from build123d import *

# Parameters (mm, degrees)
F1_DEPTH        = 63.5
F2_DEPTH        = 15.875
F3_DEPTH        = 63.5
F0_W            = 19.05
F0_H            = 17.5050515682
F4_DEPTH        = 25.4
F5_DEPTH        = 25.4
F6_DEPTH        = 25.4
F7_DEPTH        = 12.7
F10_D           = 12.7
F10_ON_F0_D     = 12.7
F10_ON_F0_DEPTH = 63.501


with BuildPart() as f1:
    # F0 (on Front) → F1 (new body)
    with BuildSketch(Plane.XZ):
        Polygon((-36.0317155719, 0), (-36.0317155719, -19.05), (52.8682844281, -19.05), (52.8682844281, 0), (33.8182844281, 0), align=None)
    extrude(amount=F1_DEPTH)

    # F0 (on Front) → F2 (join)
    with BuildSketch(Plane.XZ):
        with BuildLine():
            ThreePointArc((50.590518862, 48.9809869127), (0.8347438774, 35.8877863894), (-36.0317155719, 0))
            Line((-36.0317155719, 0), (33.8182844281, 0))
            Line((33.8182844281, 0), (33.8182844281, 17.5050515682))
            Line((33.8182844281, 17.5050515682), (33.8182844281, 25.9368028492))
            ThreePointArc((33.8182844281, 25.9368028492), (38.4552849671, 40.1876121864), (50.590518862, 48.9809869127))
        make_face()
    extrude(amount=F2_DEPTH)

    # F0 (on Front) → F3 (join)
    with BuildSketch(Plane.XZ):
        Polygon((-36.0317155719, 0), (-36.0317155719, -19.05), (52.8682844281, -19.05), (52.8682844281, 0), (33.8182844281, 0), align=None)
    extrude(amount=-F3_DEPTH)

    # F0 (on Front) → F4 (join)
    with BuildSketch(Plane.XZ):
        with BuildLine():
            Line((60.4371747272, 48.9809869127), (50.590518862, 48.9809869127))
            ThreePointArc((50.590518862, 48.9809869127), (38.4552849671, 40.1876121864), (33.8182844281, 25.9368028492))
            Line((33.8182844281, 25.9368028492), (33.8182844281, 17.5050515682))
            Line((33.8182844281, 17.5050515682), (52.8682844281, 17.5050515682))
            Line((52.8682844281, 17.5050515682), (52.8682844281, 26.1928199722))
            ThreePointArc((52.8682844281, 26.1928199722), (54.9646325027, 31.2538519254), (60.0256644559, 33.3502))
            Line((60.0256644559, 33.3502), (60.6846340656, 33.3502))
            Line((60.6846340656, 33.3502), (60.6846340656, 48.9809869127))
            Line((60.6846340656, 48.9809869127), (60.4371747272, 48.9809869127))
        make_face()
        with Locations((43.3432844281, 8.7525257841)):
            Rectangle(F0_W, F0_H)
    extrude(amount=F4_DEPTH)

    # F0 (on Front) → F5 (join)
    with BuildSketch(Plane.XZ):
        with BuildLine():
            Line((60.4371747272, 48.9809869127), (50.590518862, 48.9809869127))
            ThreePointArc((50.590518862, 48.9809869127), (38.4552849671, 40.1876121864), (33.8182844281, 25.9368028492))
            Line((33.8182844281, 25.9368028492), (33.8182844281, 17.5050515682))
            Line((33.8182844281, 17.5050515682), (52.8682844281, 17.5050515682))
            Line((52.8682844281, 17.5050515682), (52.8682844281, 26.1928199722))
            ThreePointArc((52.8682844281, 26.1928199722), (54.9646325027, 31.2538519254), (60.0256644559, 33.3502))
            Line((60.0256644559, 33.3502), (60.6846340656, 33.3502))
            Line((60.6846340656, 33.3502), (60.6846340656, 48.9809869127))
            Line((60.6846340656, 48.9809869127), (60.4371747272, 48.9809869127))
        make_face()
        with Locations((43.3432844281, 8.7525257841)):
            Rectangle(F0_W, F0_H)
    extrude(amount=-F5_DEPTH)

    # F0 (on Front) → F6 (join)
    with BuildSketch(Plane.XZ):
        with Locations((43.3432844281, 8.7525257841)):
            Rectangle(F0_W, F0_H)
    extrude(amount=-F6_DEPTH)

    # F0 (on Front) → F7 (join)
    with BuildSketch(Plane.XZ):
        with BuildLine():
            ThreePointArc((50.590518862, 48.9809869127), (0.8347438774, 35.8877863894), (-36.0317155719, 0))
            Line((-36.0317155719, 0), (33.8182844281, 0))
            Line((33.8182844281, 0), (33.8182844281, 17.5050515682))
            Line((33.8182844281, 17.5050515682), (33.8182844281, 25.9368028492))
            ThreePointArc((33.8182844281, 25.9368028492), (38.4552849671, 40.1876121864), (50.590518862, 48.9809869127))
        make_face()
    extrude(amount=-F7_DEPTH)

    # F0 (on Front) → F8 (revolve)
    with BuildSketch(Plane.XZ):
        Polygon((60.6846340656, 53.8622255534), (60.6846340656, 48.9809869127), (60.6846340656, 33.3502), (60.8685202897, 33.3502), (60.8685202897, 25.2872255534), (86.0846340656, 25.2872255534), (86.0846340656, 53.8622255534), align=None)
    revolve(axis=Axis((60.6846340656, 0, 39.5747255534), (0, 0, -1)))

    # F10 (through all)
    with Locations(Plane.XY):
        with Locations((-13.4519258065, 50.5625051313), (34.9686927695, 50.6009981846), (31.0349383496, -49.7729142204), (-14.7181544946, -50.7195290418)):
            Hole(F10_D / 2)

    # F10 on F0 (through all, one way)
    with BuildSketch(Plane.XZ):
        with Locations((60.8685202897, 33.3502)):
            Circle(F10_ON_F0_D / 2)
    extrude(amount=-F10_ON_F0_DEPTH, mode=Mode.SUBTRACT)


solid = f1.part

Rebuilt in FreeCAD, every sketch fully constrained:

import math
import FreeCAD as App
import Part
import Sketcher
Q = App.Units.Quantity

doc = App.newDocument("Part")
body = doc.addObject("PartDesign::Body", "Body")

# Sketch on XZ plane
sketch1 = doc.addObject("Sketcher::SketchObject", "Sketch")
body.addObject(sketch1)
sketch1.AttachmentSupport = (doc.XZ_Plane, [""])
sketch1.MapMode = "FlatFace"
sketch1.addGeometry(Part.LineSegment(App.Vector(-36, 0, 0), App.Vector(-36, -19, 0)), False)
sketch1.addGeometry(Part.LineSegment(App.Vector(-36, -19, 0), App.Vector(53, -19, 0)), False)
sketch1.addGeometry(Part.LineSegment(App.Vector(53, -19, 0), App.Vector(53, 0, 0)), False)
sketch1.addGeometry(Part.LineSegment(App.Vector(53, 0, 0), App.Vector(-36, 0, 0)), False)
sketch1.addConstraint(Sketcher.Constraint("Coincident", 0, 2, 1, 1))
sketch1.addConstraint(Sketcher.Constraint("Coincident", 1, 2, 2, 1))
sketch1.addConstraint(Sketcher.Constraint("Coincident", 2, 2, 3, 1))
sketch1.addConstraint(Sketcher.Constraint("Coincident", 3, 2, 0, 1))
sketch1.addConstraint(Sketcher.Constraint("Vertical", 0))
sketch1.addConstraint(Sketcher.Constraint("Horizontal", 1))
sketch1.addConstraint(Sketcher.Constraint("Vertical", 2))
sketch1.addConstraint(Sketcher.Constraint("Horizontal", 3))
sketch1.addConstraint(Sketcher.Constraint("PointOnObject", 2, 2, -1))
sketch1.addConstraint(Sketcher.Constraint("DistanceX", 1, 1, 1, 2, Q("3.5 in")))
sketch1.addConstraint(Sketcher.Constraint("DistanceY", 0, 2, 0, 1, Q("0.75 in")))
sketch1.addConstraint(Sketcher.Constraint("DistanceX", 0, 2, -1, 1, 36.031716))
pad1 = doc.addObject("PartDesign::Pad", "Pad")
body.addObject(pad1)
pad1.Profile = sketch1
pad1.Length = Q("2.5 in")

# Sketch on XZ plane
sketch2 = doc.addObject("Sketcher::SketchObject", "Sketch001")
body.addObject(sketch2)
sketch2.AttachmentSupport = (doc.XZ_Plane, [""])
sketch2.MapMode = "FlatFace"
sketch2.addGeometry(Part.ArcOfCircle(Part.Circle(App.Vector(51, -52, 0), App.Vector(0, 0, 1), 101), math.radians(90), math.radians(149)), False)
sketch2.addGeometry(Part.LineSegment(App.Vector(-36, 0, 0), App.Vector(34, 0, 0)), False)
sketch2.addGeometry(Part.LineSegment(App.Vector(34, 0, 0), App.Vector(34, 26, 0)), False)
sketch2.addGeometry(Part.ArcOfCircle(Part.Circle(App.Vector(58, 26, 0), App.Vector(0, 0, 1), 24), math.radians(108), math.radians(180)), False)
sketch2.addConstraint(Sketcher.Constraint("Coincident", 0, 2, 1, 1))
sketch2.addConstraint(Sketcher.Constraint("Coincident", 1, 2, 2, 1))
sketch2.addConstraint(Sketcher.Constraint("Tangent", 2, 2, 3, 2))
sketch2.addConstraint(Sketcher.Constraint("Coincident", 3, 1, 0, 1))
sketch2.addConstraint(Sketcher.Constraint("Horizontal", 1))
sketch2.addConstraint(Sketcher.Constraint("Vertical", 2))
sketch2.addConstraint(Sketcher.Constraint("PointOnObject", 0, 2, -1))
sketch2.addConstraint(Sketcher.Constraint("Vertical", 0, 3, 3, 1))
sketch2.addConstraint(Sketcher.Constraint("DistanceX", 1, 1, 1, 2, Q("2.75 in")))
sketch2.addConstraint(Sketcher.Constraint("Radius", 0, 101.085638))
sketch2.addConstraint(Sketcher.Constraint("Radius", 3, 24.216877))
sketch2.addConstraint(Sketcher.Constraint("DistanceY", 2, 1, 2, 2, 25.936803))
sketch2.addConstraint(Sketcher.Constraint("DistanceX", -1, 1, 0, 3, 50.590519))
pad2 = doc.addObject("PartDesign::Pad", "Pad001")
body.addObject(pad2)
pad2.Profile = sketch2
pad2.Length = Q("0.625 in")

# Sketch on XZ plane
sketch3 = doc.addObject("Sketcher::SketchObject", "Sketch002")
body.addObject(sketch3)
sketch3.AttachmentSupport = (doc.XZ_Plane, [""])
sketch3.MapMode = "FlatFace"
sketch3.addGeometry(Part.LineSegment(App.Vector(-36, 0, 0), App.Vector(-36, -19, 0)), False)
sketch3.addGeometry(Part.LineSegment(App.Vector(-36, -19, 0), App.Vector(53, -19, 0)), False)
sketch3.addGeometry(Part.LineSegment(App.Vector(53, -19, 0), App.Vector(53, 0, 0)), False)
sketch3.addGeometry(Part.LineSegment(App.Vector(53, 0, 0), App.Vector(-36, 0, 0)), False)
sketch3.addConstraint(Sketcher.Constraint("Coincident", 0, 2, 1, 1))
sketch3.addConstraint(Sketcher.Constraint("Coincident", 1, 2, 2, 1))
sketch3.addConstraint(Sketcher.Constraint("Coincident", 2, 2, 3, 1))
sketch3.addConstraint(Sketcher.Constraint("Coincident", 3, 2, 0, 1))
sketch3.addConstraint(Sketcher.Constraint("Vertical", 0))
sketch3.addConstraint(Sketcher.Constraint("Horizontal", 1))
sketch3.addConstraint(Sketcher.Constraint("Vertical", 2))
sketch3.addConstraint(Sketcher.Constraint("Horizontal", 3))
sketch3.addConstraint(Sketcher.Constraint("PointOnObject", 2, 2, -1))
sketch3.addConstraint(Sketcher.Constraint("DistanceX", 1, 1, 1, 2, Q("3.5 in")))
sketch3.addConstraint(Sketcher.Constraint("DistanceY", 0, 2, 0, 1, Q("0.75 in")))
sketch3.addConstraint(Sketcher.Constraint("DistanceX", 0, 2, -1, 1, 36.031716))
pad3 = doc.addObject("PartDesign::Pad", "Pad002")
body.addObject(pad3)
pad3.Profile = sketch3
pad3.Length = Q("2.5 in")
pad3.Reversed = True

# Sketch on XZ plane
sketch4 = doc.addObject("Sketcher::SketchObject", "Sketch003")
body.addObject(sketch4)
sketch4.AttachmentSupport = (doc.XZ_Plane, [""])
sketch4.MapMode = "FlatFace"
sketch4.addGeometry(Part.ArcOfCircle(Part.Circle(App.Vector(58, 25.9, 0), App.Vector(0, 0, 1), 24.2), math.radians(108), math.radians(180)), False)
sketch4.addGeometry(Part.LineSegment(App.Vector(33.8, 25.9, 0), App.Vector(33.8, 0, 0)), False)
sketch4.addGeometry(Part.LineSegment(App.Vector(33.8, 0, 0), App.Vector(52.9, 0, 0)), False)
sketch4.addGeometry(Part.LineSegment(App.Vector(52.9, 0, 0), App.Vector(52.9, 26.2, 0)), False)
sketch4.addGeometry(Part.ArcOfCircle(Part.Circle(App.Vector(60, 26.2, 0), App.Vector(0, 0, 1), 7.2), math.radians(90), math.radians(180)), False)
sketch4.addGeometry(Part.LineSegment(App.Vector(60, 33.4, 0), App.Vector(60.7, 33.4, 0)), False)
sketch4.addGeometry(Part.LineSegment(App.Vector(60.7, 33.4, 0), App.Vector(60.7, 49, 0)), False)
sketch4.addGeometry(Part.LineSegment(App.Vector(60.7, 49, 0), App.Vector(50.6, 49, 0)), False)
sketch4.addConstraint(Sketcher.Constraint("Tangent", 0, 2, 1, 1))
sketch4.addConstraint(Sketcher.Constraint("Coincident", 1, 2, 2, 1))
sketch4.addConstraint(Sketcher.Constraint("Coincident", 2, 2, 3, 1))
sketch4.addConstraint(Sketcher.Constraint("Tangent", 3, 2, 4, 2))
sketch4.addConstraint(Sketcher.Constraint("Tangent", 4, 1, 5, 1))
sketch4.addConstraint(Sketcher.Constraint("Coincident", 5, 2, 6, 1))
sketch4.addConstraint(Sketcher.Constraint("Coincident", 6, 2, 7, 1))
sketch4.addConstraint(Sketcher.Constraint("Coincident", 7, 2, 0, 1))
sketch4.addConstraint(Sketcher.Constraint("Vertical", 1))
sketch4.addConstraint(Sketcher.Constraint("Horizontal", 2))
sketch4.addConstraint(Sketcher.Constraint("Vertical", 3))
sketch4.addConstraint(Sketcher.Constraint("Horizontal", 5))
sketch4.addConstraint(Sketcher.Constraint("Vertical", 6))
sketch4.addConstraint(Sketcher.Constraint("Horizontal", 7))
sketch4.addConstraint(Sketcher.Constraint("PointOnObject", 1, 2, -1))
sketch4.addConstraint(Sketcher.Constraint("DistanceX", 2, 1, 2, 2, Q("0.75 in")))
sketch4.addConstraint(Sketcher.Constraint("DistanceY", -1, 1, 4, 1, Q("1.313 in")))
sketch4.addConstraint(Sketcher.Constraint("Radius", 4, 7.15738))
sketch4.addConstraint(Sketcher.Constraint("Radius", 0, 24.216877))
sketch4.addConstraint(Sketcher.Constraint("DistanceX", 5, 1, 5, 2, 0.65897))
sketch4.addConstraint(Sketcher.Constraint("DistanceX", 7, 2, 7, 1, 10.094115))
sketch4.addConstraint(Sketcher.Constraint("DistanceY", 1, 2, 1, 1, 25.936803))
sketch4.addConstraint(Sketcher.Constraint("DistanceX", -1, 1, 0, 3, 58.035161))
pad4 = doc.addObject("PartDesign::Pad", "Pad003")
body.addObject(pad4)
pad4.Profile = sketch4
pad4.Length = Q("1 in")

# Sketch on XZ plane
sketch5 = doc.addObject("Sketcher::SketchObject", "Sketch004")
body.addObject(sketch5)
sketch5.AttachmentSupport = (doc.XZ_Plane, [""])
sketch5.MapMode = "FlatFace"
sketch5.addGeometry(Part.ArcOfCircle(Part.Circle(App.Vector(58, 25.9, 0), App.Vector(0, 0, 1), 24.2), math.radians(108), math.radians(180)), False)
sketch5.addGeometry(Part.LineSegment(App.Vector(33.8, 25.9, 0), App.Vector(33.8, 0, 0)), False)
sketch5.addGeometry(Part.LineSegment(App.Vector(33.8, 0, 0), App.Vector(52.9, 0, 0)), False)
sketch5.addGeometry(Part.LineSegment(App.Vector(52.9, 0, 0), App.Vector(52.9, 26.2, 0)), False)
sketch5.addGeometry(Part.ArcOfCircle(Part.Circle(App.Vector(60, 26.2, 0), App.Vector(0, 0, 1), 7.2), math.radians(90), math.radians(180)), False)
sketch5.addGeometry(Part.LineSegment(App.Vector(60, 33.4, 0), App.Vector(60.7, 33.4, 0)), False)
sketch5.addGeometry(Part.LineSegment(App.Vector(60.7, 33.4, 0), App.Vector(60.7, 49, 0)), False)
sketch5.addGeometry(Part.LineSegment(App.Vector(60.7, 49, 0), App.Vector(50.6, 49, 0)), False)
sketch5.addConstraint(Sketcher.Constraint("Tangent", 0, 2, 1, 1))
sketch5.addConstraint(Sketcher.Constraint("Coincident", 1, 2, 2, 1))
sketch5.addConstraint(Sketcher.Constraint("Coincident", 2, 2, 3, 1))
sketch5.addConstraint(Sketcher.Constraint("Tangent", 3, 2, 4, 2))
sketch5.addConstraint(Sketcher.Constraint("Tangent", 4, 1, 5, 1))
sketch5.addConstraint(Sketcher.Constraint("Coincident", 5, 2, 6, 1))
sketch5.addConstraint(Sketcher.Constraint("Coincident", 6, 2, 7, 1))
sketch5.addConstraint(Sketcher.Constraint("Coincident", 7, 2, 0, 1))
sketch5.addConstraint(Sketcher.Constraint("Vertical", 1))
sketch5.addConstraint(Sketcher.Constraint("Horizontal", 2))
sketch5.addConstraint(Sketcher.Constraint("Vertical", 3))
sketch5.addConstraint(Sketcher.Constraint("Horizontal", 5))
sketch5.addConstraint(Sketcher.Constraint("Vertical", 6))
sketch5.addConstraint(Sketcher.Constraint("Horizontal", 7))
sketch5.addConstraint(Sketcher.Constraint("PointOnObject", 1, 2, -1))
sketch5.addConstraint(Sketcher.Constraint("DistanceX", 2, 1, 2, 2, Q("0.75 in")))
sketch5.addConstraint(Sketcher.Constraint("DistanceY", -1, 1, 4, 1, Q("1.313 in")))
sketch5.addConstraint(Sketcher.Constraint("Radius", 4, 7.15738))
sketch5.addConstraint(Sketcher.Constraint("Radius", 0, 24.216877))
sketch5.addConstraint(Sketcher.Constraint("DistanceX", 5, 1, 5, 2, 0.65897))
sketch5.addConstraint(Sketcher.Constraint("DistanceX", 7, 2, 7, 1, 10.094115))
sketch5.addConstraint(Sketcher.Constraint("DistanceY", 1, 2, 1, 1, 25.936803))
sketch5.addConstraint(Sketcher.Constraint("DistanceX", -1, 1, 0, 3, 58.035161))
pad5 = doc.addObject("PartDesign::Pad", "Pad004")
body.addObject(pad5)
pad5.Profile = sketch5
pad5.Length = Q("1 in")
pad5.Reversed = True

# Sketch on XZ plane
sketch6 = doc.addObject("Sketcher::SketchObject", "Sketch005")
body.addObject(sketch6)
sketch6.AttachmentSupport = (doc.XZ_Plane, [""])
sketch6.MapMode = "FlatFace"
sketch6.addGeometry(Part.LineSegment(App.Vector(34, 18, 0), App.Vector(34, 0, 0)), False)
sketch6.addGeometry(Part.LineSegment(App.Vector(34, 0, 0), App.Vector(53, 0, 0)), False)
sketch6.addGeometry(Part.LineSegment(App.Vector(53, 0, 0), App.Vector(53, 18, 0)), False)
sketch6.addGeometry(Part.LineSegment(App.Vector(53, 18, 0), App.Vector(34, 18, 0)), False)
sketch6.addConstraint(Sketcher.Constraint("Coincident", 0, 2, 1, 1))
sketch6.addConstraint(Sketcher.Constraint("Coincident", 1, 2, 2, 1))
sketch6.addConstraint(Sketcher.Constraint("Coincident", 2, 2, 3, 1))
sketch6.addConstraint(Sketcher.Constraint("Coincident", 3, 2, 0, 1))
sketch6.addConstraint(Sketcher.Constraint("Vertical", 0))
sketch6.addConstraint(Sketcher.Constraint("Horizontal", 1))
sketch6.addConstraint(Sketcher.Constraint("Vertical", 2))
sketch6.addConstraint(Sketcher.Constraint("Horizontal", 3))
sketch6.addConstraint(Sketcher.Constraint("PointOnObject", 0, 2, -1))
sketch6.addConstraint(Sketcher.Constraint("DistanceX", 1, 1, 1, 2, Q("0.75 in")))
sketch6.addConstraint(Sketcher.Constraint("DistanceY", 0, 2, 0, 1, 17.505052))
sketch6.addConstraint(Sketcher.Constraint("DistanceX", -1, 1, 0, 2, 33.818284))
pad6 = doc.addObject("PartDesign::Pad", "Pad005")
body.addObject(pad6)
pad6.Profile = sketch6
pad6.Length = Q("1 in")
pad6.Reversed = True

# Sketch on XZ plane
sketch7 = doc.addObject("Sketcher::SketchObject", "Sketch006")
body.addObject(sketch7)
sketch7.AttachmentSupport = (doc.XZ_Plane, [""])
sketch7.MapMode = "FlatFace"
sketch7.addGeometry(Part.ArcOfCircle(Part.Circle(App.Vector(51, -52, 0), App.Vector(0, 0, 1), 101), math.radians(90), math.radians(149)), False)
sketch7.addGeometry(Part.LineSegment(App.Vector(-36, 0, 0), App.Vector(34, 0, 0)), False)
sketch7.addGeometry(Part.LineSegment(App.Vector(34, 0, 0), App.Vector(34, 26, 0)), False)
sketch7.addGeometry(Part.ArcOfCircle(Part.Circle(App.Vector(58, 26, 0), App.Vector(0, 0, 1), 24), math.radians(108), math.radians(180)), False)
sketch7.addConstraint(Sketcher.Constraint("Coincident", 0, 2, 1, 1))
sketch7.addConstraint(Sketcher.Constraint("Coincident", 1, 2, 2, 1))
sketch7.addConstraint(Sketcher.Constraint("Tangent", 2, 2, 3, 2))
sketch7.addConstraint(Sketcher.Constraint("Coincident", 3, 1, 0, 1))
sketch7.addConstraint(Sketcher.Constraint("Horizontal", 1))
sketch7.addConstraint(Sketcher.Constraint("Vertical", 2))
sketch7.addConstraint(Sketcher.Constraint("PointOnObject", 0, 2, -1))
sketch7.addConstraint(Sketcher.Constraint("Vertical", 0, 3, 3, 1))
sketch7.addConstraint(Sketcher.Constraint("DistanceX", 1, 1, 1, 2, Q("2.75 in")))
sketch7.addConstraint(Sketcher.Constraint("Radius", 0, 101.085638))
sketch7.addConstraint(Sketcher.Constraint("Radius", 3, 24.216877))
sketch7.addConstraint(Sketcher.Constraint("DistanceY", 2, 1, 2, 2, 25.936803))
sketch7.addConstraint(Sketcher.Constraint("DistanceX", -1, 1, 0, 3, 50.590519))
pad7 = doc.addObject("PartDesign::Pad", "Pad006")
body.addObject(pad7)
pad7.Profile = sketch7
pad7.Length = Q("0.5 in")
pad7.Reversed = True

# Sketch on XZ plane
sketch8 = doc.addObject("Sketcher::SketchObject", "Sketch007")
body.addObject(sketch8)
sketch8.AttachmentSupport = (doc.XZ_Plane, [""])
sketch8.MapMode = "FlatFace"
sketch8.addGeometry(Part.LineSegment(App.Vector(60.68, 53.86, 0), App.Vector(60.68, 33.35, 0)), False)
sketch8.addGeometry(Part.LineSegment(App.Vector(60.68, 33.35, 0), App.Vector(60.87, 33.35, 0)), False)
sketch8.addGeometry(Part.LineSegment(App.Vector(60.87, 33.35, 0), App.Vector(60.87, 25.29, 0)), False)
sketch8.addGeometry(Part.LineSegment(App.Vector(60.87, 25.29, 0), App.Vector(86.08, 25.29, 0)), False)
sketch8.addGeometry(Part.LineSegment(App.Vector(86.08, 25.29, 0), App.Vector(86.08, 53.86, 0)), False)
sketch8.addGeometry(Part.LineSegment(App.Vector(86.08, 53.86, 0), App.Vector(60.68, 53.86, 0)), False)
sketch8.addGeometry(Part.LineSegment(App.Vector(60.68, 53.86, 0), App.Vector(60.68, 25.29, 0)), True)  # axis
sketch8.addConstraint(Sketcher.Constraint("Coincident", 0, 2, 1, 1))
sketch8.addConstraint(Sketcher.Constraint("Coincident", 1, 2, 2, 1))
sketch8.addConstraint(Sketcher.Constraint("Coincident", 2, 2, 3, 1))
sketch8.addConstraint(Sketcher.Constraint("Coincident", 3, 2, 4, 1))
sketch8.addConstraint(Sketcher.Constraint("Coincident", 4, 2, 5, 1))
sketch8.addConstraint(Sketcher.Constraint("Coincident", 5, 2, 0, 1))
sketch8.addConstraint(Sketcher.Constraint("Vertical", 0))
sketch8.addConstraint(Sketcher.Constraint("Horizontal", 1))
sketch8.addConstraint(Sketcher.Constraint("Vertical", 2))
sketch8.addConstraint(Sketcher.Constraint("Horizontal", 3))
sketch8.addConstraint(Sketcher.Constraint("Vertical", 4))
sketch8.addConstraint(Sketcher.Constraint("Horizontal", 5))
sketch8.addConstraint(Sketcher.Constraint("Vertical", 6))
sketch8.addConstraint(Sketcher.Constraint("Coincident", 6, 1, 5, 2))
sketch8.addConstraint(Sketcher.Constraint("Horizontal", 3, 2, 6, 2))
sketch8.addConstraint(Sketcher.Constraint("DistanceX", 5, 2, 5, 1, Q("1 in")))
sketch8.addConstraint(Sketcher.Constraint("DistanceY", 4, 1, 4, 2, Q("1.125 in")))
sketch8.addConstraint(Sketcher.Constraint("DistanceY", -1, 1, 0, 2, Q("1.313 in")))
sketch8.addConstraint(Sketcher.Constraint("DistanceX", 1, 1, 1, 2, 0.183886))
sketch8.addConstraint(Sketcher.Constraint("DistanceY", 0, 2, 0, 1, 20.512026))
sketch8.addConstraint(Sketcher.Constraint("DistanceX", -1, 1, 1, 2, 60.86852))
revolution = doc.addObject("PartDesign::Revolution", "Revolution")
body.addObject(revolution)
revolution.Profile = sketch8
revolution.ReferenceAxis = (sketch8, ["Axis0"])
revolution.Angle = 360

# Sketch on XY plane
sketch9 = doc.addObject("Sketcher::SketchObject", "Sketch008")
body.addObject(sketch9)
sketch9.AttachmentSupport = (doc.XY_Plane, [""])
sketch9.MapMode = "FlatFace"
sketch9.addGeometry(Part.Circle(App.Vector(-13, 51, 0), App.Vector(0, 0, 1), 6), False)
sketch9.addGeometry(Part.Circle(App.Vector(35, 51, 0), App.Vector(0, 0, 1), 6), False)
sketch9.addGeometry(Part.Circle(App.Vector(31, -50, 0), App.Vector(0, 0, 1), 6), False)
sketch9.addGeometry(Part.Circle(App.Vector(-15, -51, 0), App.Vector(0, 0, 1), 6), False)
sketch9.addConstraint(Sketcher.Constraint("Equal", 0, 1))
sketch9.addConstraint(Sketcher.Constraint("Equal", 1, 2))
sketch9.addConstraint(Sketcher.Constraint("Equal", 2, 3))
sketch9.addConstraint(Sketcher.Constraint("Diameter", 0, Q("0.5 in")))
sketch9.addConstraint(Sketcher.Constraint("DistanceY", -1, 1, 1, 3, 50.600998))
sketch9.addConstraint(Sketcher.Constraint("DistanceX", -1, 1, 2, 3, 31.034938))
sketch9.addConstraint(Sketcher.Constraint("DistanceY", 3, 3, -1, 1, 50.719529))
sketch9.addConstraint(Sketcher.Constraint("DistanceX", 0, 3, 1, 3, 48.420619))
sketch9.addConstraint(Sketcher.Constraint("DistanceY", 2, 3, 0, 3, 100.335419))
sketch9.addConstraint(Sketcher.Constraint("DistanceX", 3, 3, 0, 3, 1.266229))
sketch9.addConstraint(Sketcher.Constraint("DistanceX", 0, 3, -1, 1, 13.451926))
sketch9.addConstraint(Sketcher.Constraint("DistanceY", -1, 1, 0, 3, 50.562505))
doc.recompute()
hole = doc.addObject("PartDesign::Hole", "Hole")
body.addObject(hole)
hole.Profile = sketch9
hole.ThreadType = "None"
hole.Diameter = Q("0.5 in")
hole.DepthType = "ThroughAll"

# Sketch on XZ plane
sketch10 = doc.addObject("Sketcher::SketchObject", "Sketch009")
body.addObject(sketch10)
sketch10.AttachmentSupport = (doc.XZ_Plane, [""])
sketch10.MapMode = "FlatFace"
sketch10.addGeometry(Part.Circle(App.Vector(61, 33, 0), App.Vector(0, 0, 1), 6), False)
sketch10.addConstraint(Sketcher.Constraint("Diameter", 0, Q("0.5 in")))
sketch10.addConstraint(Sketcher.Constraint("DistanceY", -1, 1, 0, 3, Q("1.313 in")))
sketch10.addConstraint(Sketcher.Constraint("DistanceX", -1, 1, 0, 3, 60.86852))
pocket1 = doc.addObject("PartDesign::Pocket", "Pocket")
body.addObject(pocket1)
pocket1.Profile = sketch10
pocket1.Type = "ThroughAll"

doc.recompute()
